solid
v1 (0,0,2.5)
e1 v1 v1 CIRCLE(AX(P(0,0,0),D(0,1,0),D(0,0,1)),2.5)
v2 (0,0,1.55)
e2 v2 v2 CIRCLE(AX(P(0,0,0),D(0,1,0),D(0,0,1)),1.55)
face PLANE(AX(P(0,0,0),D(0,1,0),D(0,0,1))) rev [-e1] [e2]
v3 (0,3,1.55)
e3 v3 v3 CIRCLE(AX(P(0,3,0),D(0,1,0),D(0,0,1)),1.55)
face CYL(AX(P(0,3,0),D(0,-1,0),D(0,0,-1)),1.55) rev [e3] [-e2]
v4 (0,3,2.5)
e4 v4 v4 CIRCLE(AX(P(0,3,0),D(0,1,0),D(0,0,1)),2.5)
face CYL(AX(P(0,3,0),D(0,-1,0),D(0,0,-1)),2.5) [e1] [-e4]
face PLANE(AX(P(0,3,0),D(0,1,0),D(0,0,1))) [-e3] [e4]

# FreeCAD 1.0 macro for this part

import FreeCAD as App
import Part
import Sketcher
Q = App.Units.Quantity

doc = App.newDocument("Part")
body = doc.addObject("PartDesign::Body", "Body")

# Sketch on XZ plane
sketch1 = body.newObject("Sketcher::SketchObject", "Sketch")
sketch1.AttachmentSupport = (doc.getObject("XZ_Plane"), [""])
sketch1.MapMode = "FlatFace"
sketch1.addGeometry([
    Part.Circle(App.Vector(0, 0, 0), App.Vector(0, 0, 1), 2.5),
    Part.Circle(App.Vector(0, 0, 0), App.Vector(0, 0, 1), 1.55),
], False)
sketch1.addConstraint([
    Sketcher.Constraint("Coincident", 0, 3, -1, 1),
    Sketcher.Constraint("Coincident", 1, 3, -1, 1),
    Sketcher.Constraint("Diameter", 0, Q("5 mm")),
    Sketcher.Constraint("Diameter", 1, Q("3.1 mm")),
])
pad1 = body.newObject("PartDesign::Pad", "Pad")
pad1.Profile = sketch1
pad1.Length = 3
pad1.Reversed = True

doc.recompute()
